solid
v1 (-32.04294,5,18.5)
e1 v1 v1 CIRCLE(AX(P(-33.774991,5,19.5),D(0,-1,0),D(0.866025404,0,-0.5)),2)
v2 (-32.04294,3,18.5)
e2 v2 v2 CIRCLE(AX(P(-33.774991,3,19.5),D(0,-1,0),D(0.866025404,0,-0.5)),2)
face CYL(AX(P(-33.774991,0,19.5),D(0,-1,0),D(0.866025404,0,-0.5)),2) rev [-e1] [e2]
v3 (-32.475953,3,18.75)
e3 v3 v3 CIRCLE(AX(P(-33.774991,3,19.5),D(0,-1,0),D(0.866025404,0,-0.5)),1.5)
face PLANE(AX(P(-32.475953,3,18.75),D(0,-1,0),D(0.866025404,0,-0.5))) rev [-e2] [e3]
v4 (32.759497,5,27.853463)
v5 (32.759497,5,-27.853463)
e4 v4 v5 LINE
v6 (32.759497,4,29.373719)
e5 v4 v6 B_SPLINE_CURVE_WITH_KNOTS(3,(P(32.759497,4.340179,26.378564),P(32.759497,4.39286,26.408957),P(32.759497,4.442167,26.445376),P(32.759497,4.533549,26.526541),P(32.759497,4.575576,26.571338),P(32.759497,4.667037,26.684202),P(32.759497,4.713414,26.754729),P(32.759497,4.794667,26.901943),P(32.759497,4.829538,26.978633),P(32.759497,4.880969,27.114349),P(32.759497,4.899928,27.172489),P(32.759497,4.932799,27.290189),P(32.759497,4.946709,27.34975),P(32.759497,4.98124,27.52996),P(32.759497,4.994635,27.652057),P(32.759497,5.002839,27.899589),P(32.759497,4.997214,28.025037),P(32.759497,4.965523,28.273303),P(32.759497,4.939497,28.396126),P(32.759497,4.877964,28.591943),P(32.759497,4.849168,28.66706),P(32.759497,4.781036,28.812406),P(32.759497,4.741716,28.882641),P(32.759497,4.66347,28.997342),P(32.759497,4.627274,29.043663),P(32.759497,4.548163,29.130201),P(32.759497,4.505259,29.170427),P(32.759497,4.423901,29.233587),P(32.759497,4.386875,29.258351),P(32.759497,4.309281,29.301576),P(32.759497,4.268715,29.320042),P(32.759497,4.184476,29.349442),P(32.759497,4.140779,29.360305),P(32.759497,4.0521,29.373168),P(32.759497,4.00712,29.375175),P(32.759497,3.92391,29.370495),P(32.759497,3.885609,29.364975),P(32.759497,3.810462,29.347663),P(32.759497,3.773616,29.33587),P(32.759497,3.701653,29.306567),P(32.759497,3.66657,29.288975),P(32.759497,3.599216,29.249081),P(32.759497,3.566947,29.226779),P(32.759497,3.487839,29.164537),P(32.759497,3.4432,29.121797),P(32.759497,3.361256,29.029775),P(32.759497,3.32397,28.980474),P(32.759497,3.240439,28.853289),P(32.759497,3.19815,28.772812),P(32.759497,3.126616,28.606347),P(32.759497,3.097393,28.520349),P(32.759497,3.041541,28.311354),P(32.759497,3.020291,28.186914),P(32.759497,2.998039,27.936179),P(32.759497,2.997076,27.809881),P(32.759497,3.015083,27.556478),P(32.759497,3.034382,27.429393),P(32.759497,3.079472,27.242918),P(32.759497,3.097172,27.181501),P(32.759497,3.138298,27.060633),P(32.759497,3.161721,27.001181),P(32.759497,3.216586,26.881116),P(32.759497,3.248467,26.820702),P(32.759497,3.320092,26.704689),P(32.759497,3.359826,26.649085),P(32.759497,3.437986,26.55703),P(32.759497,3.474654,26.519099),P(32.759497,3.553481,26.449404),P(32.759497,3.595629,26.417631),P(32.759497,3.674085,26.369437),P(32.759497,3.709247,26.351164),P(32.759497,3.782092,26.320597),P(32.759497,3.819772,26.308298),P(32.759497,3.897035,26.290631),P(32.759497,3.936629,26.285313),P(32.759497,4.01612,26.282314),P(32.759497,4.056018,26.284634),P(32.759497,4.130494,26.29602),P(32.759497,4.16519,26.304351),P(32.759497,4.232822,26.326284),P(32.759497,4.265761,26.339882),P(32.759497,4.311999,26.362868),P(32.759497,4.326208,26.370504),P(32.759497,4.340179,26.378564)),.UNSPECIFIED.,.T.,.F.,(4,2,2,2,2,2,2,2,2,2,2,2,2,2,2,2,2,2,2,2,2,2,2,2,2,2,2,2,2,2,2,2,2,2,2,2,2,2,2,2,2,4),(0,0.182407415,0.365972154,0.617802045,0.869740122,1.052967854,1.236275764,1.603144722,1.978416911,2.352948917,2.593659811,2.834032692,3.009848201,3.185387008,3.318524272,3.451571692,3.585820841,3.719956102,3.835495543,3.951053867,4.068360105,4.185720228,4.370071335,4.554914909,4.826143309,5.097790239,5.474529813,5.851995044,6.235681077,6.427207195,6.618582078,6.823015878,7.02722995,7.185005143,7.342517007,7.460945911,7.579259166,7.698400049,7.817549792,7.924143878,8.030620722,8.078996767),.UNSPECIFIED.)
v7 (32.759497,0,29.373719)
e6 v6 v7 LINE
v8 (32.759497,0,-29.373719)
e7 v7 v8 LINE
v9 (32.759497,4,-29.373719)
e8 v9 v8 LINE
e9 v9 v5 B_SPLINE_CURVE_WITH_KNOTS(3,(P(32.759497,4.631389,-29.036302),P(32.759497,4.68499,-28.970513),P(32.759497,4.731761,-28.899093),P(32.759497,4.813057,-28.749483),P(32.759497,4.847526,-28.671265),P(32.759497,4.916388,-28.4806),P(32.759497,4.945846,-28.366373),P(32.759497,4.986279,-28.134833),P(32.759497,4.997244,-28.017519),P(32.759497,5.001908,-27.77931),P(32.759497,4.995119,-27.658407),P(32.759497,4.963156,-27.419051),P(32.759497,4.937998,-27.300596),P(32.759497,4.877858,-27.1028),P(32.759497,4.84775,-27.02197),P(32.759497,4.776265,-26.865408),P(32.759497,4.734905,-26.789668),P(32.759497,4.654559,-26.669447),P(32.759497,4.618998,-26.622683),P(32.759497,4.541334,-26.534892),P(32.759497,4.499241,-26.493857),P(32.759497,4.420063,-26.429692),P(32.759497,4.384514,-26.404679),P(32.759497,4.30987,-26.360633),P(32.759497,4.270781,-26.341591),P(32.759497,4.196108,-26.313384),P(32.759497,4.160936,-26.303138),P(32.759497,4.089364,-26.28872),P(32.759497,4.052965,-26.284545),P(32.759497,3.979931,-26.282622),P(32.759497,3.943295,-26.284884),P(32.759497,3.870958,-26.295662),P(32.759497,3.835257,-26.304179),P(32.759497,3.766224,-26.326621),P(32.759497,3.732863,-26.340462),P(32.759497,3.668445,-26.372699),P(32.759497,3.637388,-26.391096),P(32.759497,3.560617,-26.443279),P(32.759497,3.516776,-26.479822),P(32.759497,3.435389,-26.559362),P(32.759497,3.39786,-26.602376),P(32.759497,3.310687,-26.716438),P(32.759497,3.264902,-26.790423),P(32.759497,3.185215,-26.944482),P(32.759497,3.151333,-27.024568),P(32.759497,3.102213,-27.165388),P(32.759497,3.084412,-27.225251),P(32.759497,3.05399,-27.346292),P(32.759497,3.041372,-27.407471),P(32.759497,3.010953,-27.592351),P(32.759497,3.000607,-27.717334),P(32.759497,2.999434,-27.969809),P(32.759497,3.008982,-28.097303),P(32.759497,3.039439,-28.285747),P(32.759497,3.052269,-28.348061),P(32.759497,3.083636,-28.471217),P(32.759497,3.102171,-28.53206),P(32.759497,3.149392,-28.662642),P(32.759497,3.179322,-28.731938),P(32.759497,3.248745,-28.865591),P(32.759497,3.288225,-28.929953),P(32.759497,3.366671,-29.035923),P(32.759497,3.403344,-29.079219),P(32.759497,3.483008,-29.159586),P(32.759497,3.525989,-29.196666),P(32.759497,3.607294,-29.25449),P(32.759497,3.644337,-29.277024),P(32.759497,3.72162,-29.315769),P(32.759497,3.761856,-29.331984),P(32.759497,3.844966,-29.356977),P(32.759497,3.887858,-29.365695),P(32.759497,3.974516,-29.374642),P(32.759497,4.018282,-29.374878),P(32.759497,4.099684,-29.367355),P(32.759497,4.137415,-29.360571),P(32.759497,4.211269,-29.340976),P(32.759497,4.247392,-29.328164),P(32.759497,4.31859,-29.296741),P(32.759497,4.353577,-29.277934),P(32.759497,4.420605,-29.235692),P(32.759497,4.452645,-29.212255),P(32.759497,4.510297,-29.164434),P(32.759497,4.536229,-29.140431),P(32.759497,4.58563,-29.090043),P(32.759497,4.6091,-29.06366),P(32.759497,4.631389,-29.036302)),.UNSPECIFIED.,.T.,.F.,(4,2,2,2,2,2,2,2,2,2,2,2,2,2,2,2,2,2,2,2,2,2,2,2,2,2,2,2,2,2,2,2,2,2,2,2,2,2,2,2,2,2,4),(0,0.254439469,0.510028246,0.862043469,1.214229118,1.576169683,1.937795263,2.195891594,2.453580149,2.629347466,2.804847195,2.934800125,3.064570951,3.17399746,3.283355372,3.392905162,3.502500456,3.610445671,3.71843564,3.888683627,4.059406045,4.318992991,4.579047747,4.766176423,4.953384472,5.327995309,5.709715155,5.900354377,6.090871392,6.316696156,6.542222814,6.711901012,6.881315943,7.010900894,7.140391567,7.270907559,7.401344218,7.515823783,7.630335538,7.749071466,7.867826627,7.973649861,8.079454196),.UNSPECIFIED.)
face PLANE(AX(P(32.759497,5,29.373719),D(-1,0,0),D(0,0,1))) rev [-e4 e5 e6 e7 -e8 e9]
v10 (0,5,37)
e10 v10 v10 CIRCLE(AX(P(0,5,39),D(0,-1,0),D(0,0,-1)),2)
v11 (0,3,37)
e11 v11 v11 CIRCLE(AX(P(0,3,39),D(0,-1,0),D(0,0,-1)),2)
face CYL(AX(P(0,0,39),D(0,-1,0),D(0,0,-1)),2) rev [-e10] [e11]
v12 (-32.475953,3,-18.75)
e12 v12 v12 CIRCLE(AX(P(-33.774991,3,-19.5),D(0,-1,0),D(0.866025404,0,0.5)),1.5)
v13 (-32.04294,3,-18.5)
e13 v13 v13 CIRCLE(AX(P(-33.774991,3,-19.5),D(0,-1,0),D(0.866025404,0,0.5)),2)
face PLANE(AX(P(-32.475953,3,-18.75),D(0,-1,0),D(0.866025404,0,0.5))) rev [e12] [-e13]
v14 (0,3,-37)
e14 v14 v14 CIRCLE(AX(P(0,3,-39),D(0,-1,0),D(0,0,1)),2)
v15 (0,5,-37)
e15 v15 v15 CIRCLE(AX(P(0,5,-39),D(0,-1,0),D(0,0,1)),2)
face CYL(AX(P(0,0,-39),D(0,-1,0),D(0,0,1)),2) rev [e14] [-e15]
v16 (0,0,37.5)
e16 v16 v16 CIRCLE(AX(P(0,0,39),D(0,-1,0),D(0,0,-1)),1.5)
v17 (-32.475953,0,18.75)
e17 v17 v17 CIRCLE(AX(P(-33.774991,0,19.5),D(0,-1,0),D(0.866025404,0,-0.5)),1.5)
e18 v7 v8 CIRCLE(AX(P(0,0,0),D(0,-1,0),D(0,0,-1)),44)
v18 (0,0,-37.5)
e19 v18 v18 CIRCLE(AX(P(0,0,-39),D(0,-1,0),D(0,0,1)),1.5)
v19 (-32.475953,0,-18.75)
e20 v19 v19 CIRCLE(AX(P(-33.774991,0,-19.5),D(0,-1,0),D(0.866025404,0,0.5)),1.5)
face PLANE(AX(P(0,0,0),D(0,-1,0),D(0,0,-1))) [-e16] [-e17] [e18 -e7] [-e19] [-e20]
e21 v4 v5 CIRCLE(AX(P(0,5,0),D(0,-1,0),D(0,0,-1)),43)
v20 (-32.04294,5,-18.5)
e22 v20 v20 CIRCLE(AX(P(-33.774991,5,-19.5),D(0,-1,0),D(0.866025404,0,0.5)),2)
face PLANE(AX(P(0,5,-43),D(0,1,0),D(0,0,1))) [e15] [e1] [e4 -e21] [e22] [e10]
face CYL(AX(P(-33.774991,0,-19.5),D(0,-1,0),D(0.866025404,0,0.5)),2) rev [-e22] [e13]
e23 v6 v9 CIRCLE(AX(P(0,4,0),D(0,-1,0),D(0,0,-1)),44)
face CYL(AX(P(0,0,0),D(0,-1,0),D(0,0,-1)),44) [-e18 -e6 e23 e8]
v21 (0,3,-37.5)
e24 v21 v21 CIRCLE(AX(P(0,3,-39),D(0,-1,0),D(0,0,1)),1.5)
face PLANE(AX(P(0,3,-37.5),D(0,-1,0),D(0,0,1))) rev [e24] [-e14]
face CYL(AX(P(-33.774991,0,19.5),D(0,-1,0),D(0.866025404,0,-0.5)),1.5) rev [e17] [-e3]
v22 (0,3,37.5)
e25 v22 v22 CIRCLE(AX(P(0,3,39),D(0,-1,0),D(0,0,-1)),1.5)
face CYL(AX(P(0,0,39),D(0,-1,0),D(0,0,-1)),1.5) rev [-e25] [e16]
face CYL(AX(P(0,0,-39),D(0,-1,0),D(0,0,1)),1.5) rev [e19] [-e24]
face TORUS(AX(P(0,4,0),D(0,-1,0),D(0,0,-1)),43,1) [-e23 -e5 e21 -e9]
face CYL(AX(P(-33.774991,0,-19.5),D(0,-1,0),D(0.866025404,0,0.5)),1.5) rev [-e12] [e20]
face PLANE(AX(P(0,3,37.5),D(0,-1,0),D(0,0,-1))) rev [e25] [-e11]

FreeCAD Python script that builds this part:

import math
import FreeCAD as App
import Part
import Sketcher

V = App.Vector


def add_polygon(sketch, points):
    """Adds a closed chain of lines whose ends are joined by coincident constraints."""
    first, n = sketch.GeometryCount, len(points)
    for a, b in zip(points, points[1:] + points[:1]):
        sketch.addGeometry(Part.LineSegment(App.Vector(*a, 0), App.Vector(*b, 0)), False)
    for i in range(n):
        sketch.addConstraint(Sketcher.Constraint("Coincident", first + i, 2, first + (i + 1) % n, 1))

doc = App.newDocument("Part")
body = doc.addObject("PartDesign::Body", "Body")

# Sketch on YZ plane
sketch1 = body.newObject("Sketcher::SketchObject", "Sketch")
sketch1.AttachmentSupport = (doc.getObject("YZ_Plane"), [""])
sketch1.MapMode = "FlatFace"
sketch1.addGeometry(Part.LineSegment(V(0, 0, 0), V(0, -44, 0)), False)
sketch1.addGeometry(Part.LineSegment(V(0, -44, 0), V(4, -44, 0)), False)
sketch1.addGeometry(Part.ArcOfCircle(Part.Circle(V(4, -43, 0), V(0, 0, 1), 1), math.radians(-90), math.radians(0)), False)
sketch1.addGeometry(Part.LineSegment(V(5, -43, 0), V(5, 0, 0)), False)
sketch1.addGeometry(Part.LineSegment(V(5, 0, 0), V(0, 0, 0)), False)
sketch1.addConstraint(Sketcher.Constraint("Coincident", 0, 2, 1, 1))
sketch1.addConstraint(Sketcher.Constraint("Tangent", 1, 2, 2, 1))
sketch1.addConstraint(Sketcher.Constraint("Tangent", 2, 2, 3, 1))
sketch1.addConstraint(Sketcher.Constraint("Coincident", 3, 2, 4, 1))
sketch1.addConstraint(Sketcher.Constraint("Coincident", 4, 2, 0, 1))
sketch1.addConstraint(Sketcher.Constraint("Vertical", 0))
sketch1.addConstraint(Sketcher.Constraint("Horizontal", 1))
sketch1.addConstraint(Sketcher.Constraint("Vertical", 3))
sketch1.addConstraint(Sketcher.Constraint("Horizontal", 4))
sketch1.addConstraint(Sketcher.Constraint("Coincident", 4, 2, -1, 1))
sketch1.addConstraint(Sketcher.Constraint("Radius", 2, 1.0))
sketch1.addConstraint(Sketcher.Constraint("DistanceX", 1, 1, 1, 2, 4.0))
sketch1.addConstraint(Sketcher.Constraint("DistanceY", 0, 2, 0, 1, 44.0))
revolution = body.newObject("PartDesign::Revolution", "Revolution")
revolution.Profile = sketch1
revolution.ReferenceAxis = (sketch1, ["H_Axis"])
revolution.Angle = 360

# Sketch on YZ plane
sketch2 = body.newObject("Sketcher::SketchObject", "Sketch001")
sketch2.AttachmentSupport = (doc.getObject("YZ_Plane"), [""])
sketch2.MapMode = "FlatFace"
add_polygon(sketch2, [(0, 39), (0, 37.5), (3, 37.5), (3, 37), (5, 37), (5, 39)])  # lines 0-5
sketch2.addGeometry(Part.LineSegment(V(0, 39, 0), V(5, 39, 0)), True)  # axis
sketch2.addConstraint(Sketcher.Constraint("Vertical", 0))
sketch2.addConstraint(Sketcher.Constraint("Horizontal", 1))
sketch2.addConstraint(Sketcher.Constraint("Vertical", 2))
sketch2.addConstraint(Sketcher.Constraint("Horizontal", 3))
sketch2.addConstraint(Sketcher.Constraint("Vertical", 4))
sketch2.addConstraint(Sketcher.Constraint("Horizontal", 5))
sketch2.addConstraint(Sketcher.Constraint("Horizontal", 6))
sketch2.addConstraint(Sketcher.Constraint("Coincident", 6, 1, 5, 2))
sketch2.addConstraint(Sketcher.Constraint("PointOnObject", 0, 2, -2))
sketch2.addConstraint(Sketcher.Constraint("Vertical", 3, 2, 6, 2))
sketch2.addConstraint(Sketcher.Constraint("Equal", 3, 4))
sketch2.addConstraint(Sketcher.Constraint("DistanceX", 1, 1, 1, 2, 3.0))
sketch2.addConstraint(Sketcher.Constraint("DistanceX", 3, 1, 3, 2, 2.0))
sketch2.addConstraint(Sketcher.Constraint("DistanceY", 0, 2, 0, 1, 1.5))
sketch2.addConstraint(Sketcher.Constraint("DistanceY", -1, 1, 2, 2, 37.0))
groove = body.newObject("PartDesign::Groove", "Groove")
groove.Profile = sketch2
groove.ReferenceAxis = (sketch2, ["Axis0"])
groove.Angle = 360
doc.recompute()

polarpattern = body.newObject("PartDesign::PolarPattern", "PolarPattern")
polarpattern.Originals = [groove]
polarpattern.Axis = (doc.getObject("Y_Axis"), [""])
polarpattern.Angle = 180
polarpattern.Occurrences = 4
polarpattern.Reversed = True
body.Tip = polarpattern

# Sketch on XZ plane
sketch3 = body.newObject("Sketcher::SketchObject", "Sketch002")
sketch3.AttachmentSupport = (doc.getObject("XZ_Plane"), [""])
sketch3.MapMode = "FlatFace"
sketch3.addGeometry(Part.LineSegment(V(33, 29, 0), V(33, -29, 0)), False)
sketch3.addGeometry(Part.ArcOfCircle(Part.Circle(V(0, 0, 0), V(0, 0, 1), 44), math.radians(-42), math.radians(42)), False)
sketch3.addConstraint(Sketcher.Constraint("Coincident", 0, 1, 1, 2))
sketch3.addConstraint(Sketcher.Constraint("Coincident", 1, 1, 0, 2))
sketch3.addConstraint(Sketcher.Constraint("Vertical", 0))
sketch3.addConstraint(Sketcher.Constraint("Coincident", 1, 3, -1, 1))
sketch3.addConstraint(Sketcher.Constraint("Radius", 1, 44.0))
sketch3.addConstraint(Sketcher.Constraint("DistanceY", 0, 2, 0, 1, 58.747439))
pocket1 = body.newObject("PartDesign::Pocket", "Pocket")
pocket1.Profile = sketch3
pocket1.Type = "ThroughAll"

doc.recompute()
